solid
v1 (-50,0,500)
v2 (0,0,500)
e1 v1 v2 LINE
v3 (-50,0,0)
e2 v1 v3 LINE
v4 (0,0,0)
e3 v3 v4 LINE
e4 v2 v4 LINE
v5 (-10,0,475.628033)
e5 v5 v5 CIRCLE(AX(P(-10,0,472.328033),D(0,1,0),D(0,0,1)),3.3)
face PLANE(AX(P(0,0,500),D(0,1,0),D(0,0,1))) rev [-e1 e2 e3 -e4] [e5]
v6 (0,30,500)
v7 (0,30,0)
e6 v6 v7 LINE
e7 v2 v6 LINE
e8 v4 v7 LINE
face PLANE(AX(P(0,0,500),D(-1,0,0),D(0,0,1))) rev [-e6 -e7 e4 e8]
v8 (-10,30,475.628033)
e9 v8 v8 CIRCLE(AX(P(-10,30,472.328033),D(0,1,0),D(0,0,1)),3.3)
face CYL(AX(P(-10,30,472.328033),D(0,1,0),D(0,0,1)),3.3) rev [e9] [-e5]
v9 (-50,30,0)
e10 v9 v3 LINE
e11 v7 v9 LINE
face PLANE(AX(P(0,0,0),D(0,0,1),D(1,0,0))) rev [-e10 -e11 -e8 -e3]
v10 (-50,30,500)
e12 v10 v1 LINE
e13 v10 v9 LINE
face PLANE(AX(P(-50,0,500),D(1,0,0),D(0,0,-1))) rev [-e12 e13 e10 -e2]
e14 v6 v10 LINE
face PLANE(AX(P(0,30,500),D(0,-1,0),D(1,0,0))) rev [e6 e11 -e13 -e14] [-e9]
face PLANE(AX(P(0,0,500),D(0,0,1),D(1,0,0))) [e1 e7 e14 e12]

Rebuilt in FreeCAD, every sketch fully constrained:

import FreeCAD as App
import Part
import Sketcher

V = App.Vector

doc = App.newDocument("Part")
body = doc.addObject("PartDesign::Body", "Body")

# Sketch on XY plane
sketch1 = doc.addObject("Sketcher::SketchObject", "Sketch")
body.addObject(sketch1)
sketch1.AttachmentSupport = (doc.XY_Plane, [""])
sketch1.MapMode = "FlatFace"
sketch1.addGeometry([
    Part.LineSegment(V(-50, 30, 0), V(-50, 0, 0)),
    Part.LineSegment(V(-50, 0, 0), V(0, 0, 0)),
    Part.LineSegment(V(0, 0, 0), V(0, 30, 0)),
    Part.LineSegment(V(0, 30, 0), V(-50, 30, 0)),
], False)
sketch1.addConstraint([
    Sketcher.Constraint("Coincident", 0, 2, 1, 1),
    Sketcher.Constraint("Coincident", 1, 2, 2, 1),
    Sketcher.Constraint("Coincident", 2, 2, 3, 1),
    Sketcher.Constraint("Coincident", 3, 2, 0, 1),
    Sketcher.Constraint("Vertical", 0),
    Sketcher.Constraint("Horizontal", 1),
    Sketcher.Constraint("Vertical", 2),
    Sketcher.Constraint("Horizontal", 3),
    Sketcher.Constraint("Coincident", 1, 2, -1, 1),
    Sketcher.Constraint("DistanceX", 1, 1, 1, 2, 50.0),
    Sketcher.Constraint("DistanceY", 0, 2, 0, 1, 30.0),
])
pad1 = doc.addObject("PartDesign::Pad", "Pad")
body.addObject(pad1)
pad1.Profile = sketch1
pad1.Length = 500

# Sketch on XZ plane
sketch2 = doc.addObject("Sketcher::SketchObject", "Sketch001")
body.addObject(sketch2)
sketch2.AttachmentSupport = (doc.XZ_Plane, [""])
sketch2.MapMode = "FlatFace"
sketch2.AttachmentOffset = App.Placement(V(0, 0, -30), App.Rotation())
sketch2.addGeometry(Part.Circle(V(-10, 472.3, 0), V(0, 0, 1), 3.3), False)
sketch2.addConstraint([
    Sketcher.Constraint("Diameter", 0, 6.6),
    Sketcher.Constraint("DistanceX", 0, 3, -1, 1, 10.0),
    Sketcher.Constraint("DistanceY", -1, 1, 0, 3, 472.328033),
])
doc.recompute()
hole = doc.addObject("PartDesign::Hole", "Hole")
body.addObject(hole)
hole.Profile = sketch2
hole.ThreadType = "None"
hole.Diameter = 6.6
hole.DepthType = "ThroughAll"
hole.Reversed = True

doc.recompute()
